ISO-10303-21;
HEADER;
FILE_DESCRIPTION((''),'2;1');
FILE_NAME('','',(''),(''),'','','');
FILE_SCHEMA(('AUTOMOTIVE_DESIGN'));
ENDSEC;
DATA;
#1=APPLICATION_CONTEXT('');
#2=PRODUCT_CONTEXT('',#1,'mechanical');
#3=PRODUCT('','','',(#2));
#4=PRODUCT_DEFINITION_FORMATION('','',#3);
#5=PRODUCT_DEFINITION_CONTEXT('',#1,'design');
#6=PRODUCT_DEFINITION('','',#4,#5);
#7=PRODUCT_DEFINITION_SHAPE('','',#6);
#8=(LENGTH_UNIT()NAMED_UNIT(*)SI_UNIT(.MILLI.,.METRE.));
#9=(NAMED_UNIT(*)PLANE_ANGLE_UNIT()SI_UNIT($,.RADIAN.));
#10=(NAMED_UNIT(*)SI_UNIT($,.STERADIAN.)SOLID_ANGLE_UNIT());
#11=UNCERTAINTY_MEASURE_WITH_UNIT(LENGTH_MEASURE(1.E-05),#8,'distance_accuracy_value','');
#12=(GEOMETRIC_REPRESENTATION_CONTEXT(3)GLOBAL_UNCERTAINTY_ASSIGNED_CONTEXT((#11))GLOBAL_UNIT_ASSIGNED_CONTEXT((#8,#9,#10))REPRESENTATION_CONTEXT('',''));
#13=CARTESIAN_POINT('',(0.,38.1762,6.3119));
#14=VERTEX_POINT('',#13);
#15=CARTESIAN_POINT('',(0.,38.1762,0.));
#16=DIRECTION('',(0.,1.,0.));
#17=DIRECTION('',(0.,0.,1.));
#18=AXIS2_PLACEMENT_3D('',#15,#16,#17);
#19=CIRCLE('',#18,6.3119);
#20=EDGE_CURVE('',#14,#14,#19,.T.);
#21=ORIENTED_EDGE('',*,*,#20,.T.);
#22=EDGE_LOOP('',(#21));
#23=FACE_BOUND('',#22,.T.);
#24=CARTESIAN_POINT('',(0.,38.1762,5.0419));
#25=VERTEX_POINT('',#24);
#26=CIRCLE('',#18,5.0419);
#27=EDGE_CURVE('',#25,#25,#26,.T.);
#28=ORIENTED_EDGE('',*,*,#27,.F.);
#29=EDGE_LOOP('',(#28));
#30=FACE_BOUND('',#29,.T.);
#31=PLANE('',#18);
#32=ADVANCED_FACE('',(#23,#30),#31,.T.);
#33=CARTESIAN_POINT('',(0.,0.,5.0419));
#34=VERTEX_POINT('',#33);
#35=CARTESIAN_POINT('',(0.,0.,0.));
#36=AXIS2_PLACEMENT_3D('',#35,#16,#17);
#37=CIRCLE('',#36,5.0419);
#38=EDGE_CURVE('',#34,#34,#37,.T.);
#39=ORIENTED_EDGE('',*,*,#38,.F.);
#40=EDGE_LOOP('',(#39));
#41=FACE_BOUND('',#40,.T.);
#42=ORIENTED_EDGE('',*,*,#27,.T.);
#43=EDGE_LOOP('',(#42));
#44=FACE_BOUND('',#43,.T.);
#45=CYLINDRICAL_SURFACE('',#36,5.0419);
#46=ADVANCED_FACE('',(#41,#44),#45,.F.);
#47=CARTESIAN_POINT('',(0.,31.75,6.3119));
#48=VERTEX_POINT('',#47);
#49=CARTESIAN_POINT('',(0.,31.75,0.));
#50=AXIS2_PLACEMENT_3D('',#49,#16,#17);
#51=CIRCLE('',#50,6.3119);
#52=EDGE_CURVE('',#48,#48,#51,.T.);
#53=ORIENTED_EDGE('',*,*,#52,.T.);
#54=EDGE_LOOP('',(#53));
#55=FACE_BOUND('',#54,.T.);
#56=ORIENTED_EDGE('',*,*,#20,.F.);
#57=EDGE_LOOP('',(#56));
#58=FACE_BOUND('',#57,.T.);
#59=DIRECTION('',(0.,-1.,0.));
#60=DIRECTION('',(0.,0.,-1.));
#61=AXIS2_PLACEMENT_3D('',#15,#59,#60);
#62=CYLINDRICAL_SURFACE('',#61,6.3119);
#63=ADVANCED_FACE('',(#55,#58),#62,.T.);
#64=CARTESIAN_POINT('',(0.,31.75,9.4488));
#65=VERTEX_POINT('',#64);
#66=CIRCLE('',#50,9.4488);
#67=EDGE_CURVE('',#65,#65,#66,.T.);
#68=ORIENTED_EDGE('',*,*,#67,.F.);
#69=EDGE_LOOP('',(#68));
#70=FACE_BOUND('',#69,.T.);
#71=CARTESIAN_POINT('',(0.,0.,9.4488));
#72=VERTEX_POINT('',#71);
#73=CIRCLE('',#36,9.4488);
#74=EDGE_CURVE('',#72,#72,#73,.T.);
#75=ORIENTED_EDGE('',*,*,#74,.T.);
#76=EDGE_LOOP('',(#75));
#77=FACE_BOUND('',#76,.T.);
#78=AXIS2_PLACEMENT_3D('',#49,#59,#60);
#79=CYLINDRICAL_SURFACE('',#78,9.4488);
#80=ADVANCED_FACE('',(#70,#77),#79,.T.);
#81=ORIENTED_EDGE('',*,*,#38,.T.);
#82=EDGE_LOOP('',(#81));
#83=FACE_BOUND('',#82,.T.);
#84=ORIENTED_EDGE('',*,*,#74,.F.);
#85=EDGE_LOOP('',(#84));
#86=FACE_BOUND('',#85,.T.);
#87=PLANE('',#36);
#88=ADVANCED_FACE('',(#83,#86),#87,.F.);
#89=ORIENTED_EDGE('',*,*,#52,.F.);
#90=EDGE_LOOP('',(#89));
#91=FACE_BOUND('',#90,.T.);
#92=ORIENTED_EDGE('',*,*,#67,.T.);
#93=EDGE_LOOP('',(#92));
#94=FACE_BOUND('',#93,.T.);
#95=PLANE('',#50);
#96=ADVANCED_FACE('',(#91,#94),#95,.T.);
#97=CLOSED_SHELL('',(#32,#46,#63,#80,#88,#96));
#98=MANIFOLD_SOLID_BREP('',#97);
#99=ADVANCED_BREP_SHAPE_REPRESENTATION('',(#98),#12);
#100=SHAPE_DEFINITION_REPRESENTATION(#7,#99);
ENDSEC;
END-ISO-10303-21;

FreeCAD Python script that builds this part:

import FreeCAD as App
import Part
import Sketcher

V = App.Vector
Q = App.Units.Quantity

doc = App.newDocument("Part")
body = doc.addObject("PartDesign::Body", "Body")

# Sketch on XZ plane
sketch1 = body.newObject("Sketcher::SketchObject", "Sketch")
sketch1.AttachmentSupport = (doc.getObject("XZ_Plane"), [""])
sketch1.MapMode = "FlatFace"
sketch1.addGeometry(Part.Circle(V(0, 0, 0), V(0, 0, 1), 9.4488), False)
sketch1.addConstraint([
    Sketcher.Constraint("Coincident", 0, 3, -1, 1),
    Sketcher.Constraint("Diameter", 0, Q("0.744 in")),
])
pad1 = body.newObject("PartDesign::Pad", "Pad")
pad1.Profile = sketch1
pad1.Length = Q("1.25 in")
pad1.Reversed = True

# Sketch on XZ plane
sketch2 = body.newObject("Sketcher::SketchObject", "Sketch001")
sketch2.AttachmentSupport = (doc.getObject("XZ_Plane"), [""])
sketch2.MapMode = "FlatFace"
sketch2.AttachmentOffset = App.Placement(V(0, 0, -1.25 * 25.4), App.Rotation())
sketch2.addGeometry(Part.Circle(V(0, 0, 0), V(0, 0, 1), 6.3119), False)
sketch2.addConstraint([
    Sketcher.Constraint("Coincident", 0, 3, -1, 1),
    Sketcher.Constraint("Diameter", 0, Q("0.497 in")),
])
pad2 = body.newObject("PartDesign::Pad", "Pad001")
pad2.Profile = sketch2
pad2.Length = Q("0.253 in")
pad2.Reversed = True

# Sketch on XZ plane
sketch3 = body.newObject("Sketcher::SketchObject", "Sketch002")
sketch3.AttachmentSupport = (doc.getObject("XZ_Plane"), [""])
sketch3.MapMode = "FlatFace"
sketch3.AttachmentOffset = App.Placement(V(0, 0, -1.503 * 25.4), App.Rotation())
sketch3.addGeometry(Part.Circle(V(0, 0, 0), V(0, 0, 1), 5.0419), False)
sketch3.addConstraint([
    Sketcher.Constraint("Coincident", 0, 3, -1, 1),
    Sketcher.Constraint("Diameter", 0, Q("0.397 in")),
])
pocket1 = body.newObject("PartDesign::Pocket", "Pocket")
pocket1.Profile = sketch3
pocket1.Type = "ThroughAll"
pocket1.Reversed = True

doc.recompute()
